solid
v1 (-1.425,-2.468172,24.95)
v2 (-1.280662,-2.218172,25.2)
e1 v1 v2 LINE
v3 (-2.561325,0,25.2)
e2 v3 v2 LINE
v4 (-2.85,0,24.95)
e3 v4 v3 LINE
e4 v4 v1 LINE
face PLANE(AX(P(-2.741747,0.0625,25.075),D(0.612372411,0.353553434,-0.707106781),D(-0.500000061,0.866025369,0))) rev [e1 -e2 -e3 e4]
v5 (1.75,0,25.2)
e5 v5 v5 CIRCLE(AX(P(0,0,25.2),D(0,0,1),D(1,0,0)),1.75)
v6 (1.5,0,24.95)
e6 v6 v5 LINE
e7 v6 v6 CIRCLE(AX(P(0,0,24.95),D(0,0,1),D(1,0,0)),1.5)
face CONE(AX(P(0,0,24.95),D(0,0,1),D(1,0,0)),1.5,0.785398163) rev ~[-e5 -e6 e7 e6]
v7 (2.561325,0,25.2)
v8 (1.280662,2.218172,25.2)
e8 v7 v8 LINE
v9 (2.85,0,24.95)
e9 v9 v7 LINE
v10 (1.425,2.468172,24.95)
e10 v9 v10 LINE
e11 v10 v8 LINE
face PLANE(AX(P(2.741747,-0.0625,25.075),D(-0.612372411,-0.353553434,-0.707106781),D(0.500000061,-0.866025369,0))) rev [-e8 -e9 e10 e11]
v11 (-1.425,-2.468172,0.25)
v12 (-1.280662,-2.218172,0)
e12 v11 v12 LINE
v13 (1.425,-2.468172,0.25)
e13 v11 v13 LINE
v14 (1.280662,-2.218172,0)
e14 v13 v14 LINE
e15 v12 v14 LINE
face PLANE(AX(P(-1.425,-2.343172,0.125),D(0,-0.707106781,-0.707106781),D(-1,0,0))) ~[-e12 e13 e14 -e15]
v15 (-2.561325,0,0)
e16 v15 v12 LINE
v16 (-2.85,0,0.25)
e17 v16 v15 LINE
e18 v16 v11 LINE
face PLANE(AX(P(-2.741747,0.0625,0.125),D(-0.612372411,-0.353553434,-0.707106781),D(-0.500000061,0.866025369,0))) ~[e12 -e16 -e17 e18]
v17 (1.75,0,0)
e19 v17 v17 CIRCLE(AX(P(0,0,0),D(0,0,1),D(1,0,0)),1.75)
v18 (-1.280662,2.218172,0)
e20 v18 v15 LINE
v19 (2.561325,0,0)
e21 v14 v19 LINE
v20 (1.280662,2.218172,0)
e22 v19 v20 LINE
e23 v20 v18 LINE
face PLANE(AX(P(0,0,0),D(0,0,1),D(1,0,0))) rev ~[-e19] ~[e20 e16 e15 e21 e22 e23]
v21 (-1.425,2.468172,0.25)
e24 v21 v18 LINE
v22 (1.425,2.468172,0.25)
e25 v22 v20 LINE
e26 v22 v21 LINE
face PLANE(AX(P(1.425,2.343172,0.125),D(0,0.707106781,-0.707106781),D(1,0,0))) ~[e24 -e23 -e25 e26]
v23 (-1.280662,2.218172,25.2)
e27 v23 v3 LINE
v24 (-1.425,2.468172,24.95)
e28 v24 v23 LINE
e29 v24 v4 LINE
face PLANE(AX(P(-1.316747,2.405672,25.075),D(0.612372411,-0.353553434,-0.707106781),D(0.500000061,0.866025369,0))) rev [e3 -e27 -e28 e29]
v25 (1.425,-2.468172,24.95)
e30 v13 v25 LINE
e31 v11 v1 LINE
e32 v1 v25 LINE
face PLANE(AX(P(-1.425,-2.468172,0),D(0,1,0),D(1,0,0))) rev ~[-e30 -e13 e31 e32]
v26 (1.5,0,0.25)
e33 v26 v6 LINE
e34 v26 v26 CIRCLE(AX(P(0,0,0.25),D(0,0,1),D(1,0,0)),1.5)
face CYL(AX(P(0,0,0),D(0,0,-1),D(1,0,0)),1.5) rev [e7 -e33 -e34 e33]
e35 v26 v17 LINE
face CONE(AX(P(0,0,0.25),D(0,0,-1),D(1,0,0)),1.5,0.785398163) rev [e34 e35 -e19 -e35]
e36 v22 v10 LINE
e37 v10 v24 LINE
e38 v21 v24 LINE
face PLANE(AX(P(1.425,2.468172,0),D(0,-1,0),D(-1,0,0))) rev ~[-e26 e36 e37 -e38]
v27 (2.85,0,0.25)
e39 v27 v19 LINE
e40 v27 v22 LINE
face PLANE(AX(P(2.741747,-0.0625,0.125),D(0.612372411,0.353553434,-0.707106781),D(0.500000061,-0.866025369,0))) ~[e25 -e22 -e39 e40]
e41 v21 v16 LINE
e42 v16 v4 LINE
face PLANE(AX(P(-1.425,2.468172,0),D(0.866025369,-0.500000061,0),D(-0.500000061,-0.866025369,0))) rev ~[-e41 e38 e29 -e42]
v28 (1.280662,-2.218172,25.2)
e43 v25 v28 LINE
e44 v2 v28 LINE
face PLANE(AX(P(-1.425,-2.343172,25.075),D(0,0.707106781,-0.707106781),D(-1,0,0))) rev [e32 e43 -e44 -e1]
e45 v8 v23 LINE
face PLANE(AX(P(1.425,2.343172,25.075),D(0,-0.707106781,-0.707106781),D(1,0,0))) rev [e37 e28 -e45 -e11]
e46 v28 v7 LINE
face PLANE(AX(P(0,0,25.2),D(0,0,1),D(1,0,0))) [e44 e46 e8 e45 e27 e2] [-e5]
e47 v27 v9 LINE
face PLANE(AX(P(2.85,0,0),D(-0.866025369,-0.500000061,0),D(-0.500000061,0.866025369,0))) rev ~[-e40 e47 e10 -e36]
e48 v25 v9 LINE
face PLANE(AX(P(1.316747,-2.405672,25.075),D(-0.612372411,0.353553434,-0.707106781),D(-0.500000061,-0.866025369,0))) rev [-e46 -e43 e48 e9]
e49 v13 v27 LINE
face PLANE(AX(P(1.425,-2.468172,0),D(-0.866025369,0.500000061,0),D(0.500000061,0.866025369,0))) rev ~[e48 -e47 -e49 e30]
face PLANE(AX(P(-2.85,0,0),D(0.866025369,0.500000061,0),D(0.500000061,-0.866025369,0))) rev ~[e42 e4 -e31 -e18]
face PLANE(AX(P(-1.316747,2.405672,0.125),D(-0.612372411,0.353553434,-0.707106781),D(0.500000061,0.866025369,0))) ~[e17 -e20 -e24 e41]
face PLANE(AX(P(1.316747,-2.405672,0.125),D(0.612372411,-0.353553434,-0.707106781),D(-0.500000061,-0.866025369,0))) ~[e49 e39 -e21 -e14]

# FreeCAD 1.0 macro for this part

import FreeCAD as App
import Part
import Sketcher
Q = App.Units.Quantity


def edges_at(feature, points):
    """Names of the edges that pass closest to the given points."""
    edges = feature.Shape.Edges
    near = lambda p: min(range(len(edges)), key=lambda i: edges[i].distToShape(Part.Vertex(*p))[0])
    return sorted({f"Edge{near(p) + 1}" for p in points})


def add_polygon(sketch, points):
    """Adds a closed chain of lines whose ends are joined by coincident constraints."""
    first, n = sketch.GeometryCount, len(points)
    for a, b in zip(points, points[1:] + points[:1]):
        sketch.addGeometry(Part.LineSegment(App.Vector(*a, 0), App.Vector(*b, 0)), False)
    for i in range(n):
        sketch.addConstraint(Sketcher.Constraint("Coincident", first + i, 2, first + (i + 1) % n, 1))

doc = App.newDocument("Part")
body = doc.addObject("PartDesign::Body", "Body")

# Sketch on XY plane
sketch1 = body.newObject("Sketcher::SketchObject", "Sketch")
sketch1.AttachmentSupport = (doc.getObject("XY_Plane"), [""])
sketch1.MapMode = "FlatFace"
add_polygon(sketch1, [(2.85, 0), (1.425, 2.468172), (-1.425, 2.468172), (-2.85, 0), (-1.425, -2.468172), (1.425, -2.468172)])  # lines 0-5
sketch1.addGeometry(Part.Circle(App.Vector(0, 0, 0), App.Vector(0, 0, 1), 1.5), False)  # 6
sketch1.addConstraint(Sketcher.Constraint("Horizontal", 1))
sketch1.addConstraint(Sketcher.Constraint("Horizontal", 4))
sketch1.addConstraint(Sketcher.Constraint("Coincident", 6, 3, -1, 1))
sketch1.addConstraint(Sketcher.Constraint("Symmetric", 0, 2, 3, 2, -1, 1))
sketch1.addConstraint(Sketcher.Constraint("Symmetric", 2, 2, 5, 2, -1, 1))
sketch1.addConstraint(Sketcher.Constraint("PointOnObject", 2, 2, -1))
sketch1.addConstraint(Sketcher.Constraint("Parallel", 2, 5))
sketch1.addConstraint(Sketcher.Constraint("Vertical", 1, 2, 3, 2))
sketch1.addConstraint(Sketcher.Constraint("Diameter", 6, Q("3 mm")))
sketch1.addConstraint(Sketcher.Constraint("Angle", 0, Q("120.000004 deg")))
sketch1.addConstraint(Sketcher.Constraint("DistanceX", 1, 2, 1, 1, Q("2.85 mm")))
sketch1.addConstraint(Sketcher.Constraint("Distance", 0, Q("2.85 mm")))
pad1 = body.newObject("PartDesign::Pad", "Pad")
pad1.Profile = sketch1
pad1.Length = 25.2
doc.recompute()

chamfer = body.newObject("PartDesign::Chamfer", "Chamfer")
chamfer.Base = (pad1, edges_at(pad1, [
    (2.138, 1.234, 0),
    (0, 2.468, 0),
    (-2.138, 1.234, 0),
    (-2.138, -1.234, 0),
    (0, -2.468, 0),
    (2.138, -1.234, 0),
    (-1.5, 0, 0),
    (2.138, 1.234, 25.2),
    (0, 2.468, 25.2),
    (-2.138, 1.234, 25.2),
    (-2.138, -1.234, 25.2),
    (0, -2.468, 25.2),
    (2.138, -1.234, 25.2),
    (-1.5, 0, 25.2),
]))
chamfer.Size = 0.25

doc.recompute()
